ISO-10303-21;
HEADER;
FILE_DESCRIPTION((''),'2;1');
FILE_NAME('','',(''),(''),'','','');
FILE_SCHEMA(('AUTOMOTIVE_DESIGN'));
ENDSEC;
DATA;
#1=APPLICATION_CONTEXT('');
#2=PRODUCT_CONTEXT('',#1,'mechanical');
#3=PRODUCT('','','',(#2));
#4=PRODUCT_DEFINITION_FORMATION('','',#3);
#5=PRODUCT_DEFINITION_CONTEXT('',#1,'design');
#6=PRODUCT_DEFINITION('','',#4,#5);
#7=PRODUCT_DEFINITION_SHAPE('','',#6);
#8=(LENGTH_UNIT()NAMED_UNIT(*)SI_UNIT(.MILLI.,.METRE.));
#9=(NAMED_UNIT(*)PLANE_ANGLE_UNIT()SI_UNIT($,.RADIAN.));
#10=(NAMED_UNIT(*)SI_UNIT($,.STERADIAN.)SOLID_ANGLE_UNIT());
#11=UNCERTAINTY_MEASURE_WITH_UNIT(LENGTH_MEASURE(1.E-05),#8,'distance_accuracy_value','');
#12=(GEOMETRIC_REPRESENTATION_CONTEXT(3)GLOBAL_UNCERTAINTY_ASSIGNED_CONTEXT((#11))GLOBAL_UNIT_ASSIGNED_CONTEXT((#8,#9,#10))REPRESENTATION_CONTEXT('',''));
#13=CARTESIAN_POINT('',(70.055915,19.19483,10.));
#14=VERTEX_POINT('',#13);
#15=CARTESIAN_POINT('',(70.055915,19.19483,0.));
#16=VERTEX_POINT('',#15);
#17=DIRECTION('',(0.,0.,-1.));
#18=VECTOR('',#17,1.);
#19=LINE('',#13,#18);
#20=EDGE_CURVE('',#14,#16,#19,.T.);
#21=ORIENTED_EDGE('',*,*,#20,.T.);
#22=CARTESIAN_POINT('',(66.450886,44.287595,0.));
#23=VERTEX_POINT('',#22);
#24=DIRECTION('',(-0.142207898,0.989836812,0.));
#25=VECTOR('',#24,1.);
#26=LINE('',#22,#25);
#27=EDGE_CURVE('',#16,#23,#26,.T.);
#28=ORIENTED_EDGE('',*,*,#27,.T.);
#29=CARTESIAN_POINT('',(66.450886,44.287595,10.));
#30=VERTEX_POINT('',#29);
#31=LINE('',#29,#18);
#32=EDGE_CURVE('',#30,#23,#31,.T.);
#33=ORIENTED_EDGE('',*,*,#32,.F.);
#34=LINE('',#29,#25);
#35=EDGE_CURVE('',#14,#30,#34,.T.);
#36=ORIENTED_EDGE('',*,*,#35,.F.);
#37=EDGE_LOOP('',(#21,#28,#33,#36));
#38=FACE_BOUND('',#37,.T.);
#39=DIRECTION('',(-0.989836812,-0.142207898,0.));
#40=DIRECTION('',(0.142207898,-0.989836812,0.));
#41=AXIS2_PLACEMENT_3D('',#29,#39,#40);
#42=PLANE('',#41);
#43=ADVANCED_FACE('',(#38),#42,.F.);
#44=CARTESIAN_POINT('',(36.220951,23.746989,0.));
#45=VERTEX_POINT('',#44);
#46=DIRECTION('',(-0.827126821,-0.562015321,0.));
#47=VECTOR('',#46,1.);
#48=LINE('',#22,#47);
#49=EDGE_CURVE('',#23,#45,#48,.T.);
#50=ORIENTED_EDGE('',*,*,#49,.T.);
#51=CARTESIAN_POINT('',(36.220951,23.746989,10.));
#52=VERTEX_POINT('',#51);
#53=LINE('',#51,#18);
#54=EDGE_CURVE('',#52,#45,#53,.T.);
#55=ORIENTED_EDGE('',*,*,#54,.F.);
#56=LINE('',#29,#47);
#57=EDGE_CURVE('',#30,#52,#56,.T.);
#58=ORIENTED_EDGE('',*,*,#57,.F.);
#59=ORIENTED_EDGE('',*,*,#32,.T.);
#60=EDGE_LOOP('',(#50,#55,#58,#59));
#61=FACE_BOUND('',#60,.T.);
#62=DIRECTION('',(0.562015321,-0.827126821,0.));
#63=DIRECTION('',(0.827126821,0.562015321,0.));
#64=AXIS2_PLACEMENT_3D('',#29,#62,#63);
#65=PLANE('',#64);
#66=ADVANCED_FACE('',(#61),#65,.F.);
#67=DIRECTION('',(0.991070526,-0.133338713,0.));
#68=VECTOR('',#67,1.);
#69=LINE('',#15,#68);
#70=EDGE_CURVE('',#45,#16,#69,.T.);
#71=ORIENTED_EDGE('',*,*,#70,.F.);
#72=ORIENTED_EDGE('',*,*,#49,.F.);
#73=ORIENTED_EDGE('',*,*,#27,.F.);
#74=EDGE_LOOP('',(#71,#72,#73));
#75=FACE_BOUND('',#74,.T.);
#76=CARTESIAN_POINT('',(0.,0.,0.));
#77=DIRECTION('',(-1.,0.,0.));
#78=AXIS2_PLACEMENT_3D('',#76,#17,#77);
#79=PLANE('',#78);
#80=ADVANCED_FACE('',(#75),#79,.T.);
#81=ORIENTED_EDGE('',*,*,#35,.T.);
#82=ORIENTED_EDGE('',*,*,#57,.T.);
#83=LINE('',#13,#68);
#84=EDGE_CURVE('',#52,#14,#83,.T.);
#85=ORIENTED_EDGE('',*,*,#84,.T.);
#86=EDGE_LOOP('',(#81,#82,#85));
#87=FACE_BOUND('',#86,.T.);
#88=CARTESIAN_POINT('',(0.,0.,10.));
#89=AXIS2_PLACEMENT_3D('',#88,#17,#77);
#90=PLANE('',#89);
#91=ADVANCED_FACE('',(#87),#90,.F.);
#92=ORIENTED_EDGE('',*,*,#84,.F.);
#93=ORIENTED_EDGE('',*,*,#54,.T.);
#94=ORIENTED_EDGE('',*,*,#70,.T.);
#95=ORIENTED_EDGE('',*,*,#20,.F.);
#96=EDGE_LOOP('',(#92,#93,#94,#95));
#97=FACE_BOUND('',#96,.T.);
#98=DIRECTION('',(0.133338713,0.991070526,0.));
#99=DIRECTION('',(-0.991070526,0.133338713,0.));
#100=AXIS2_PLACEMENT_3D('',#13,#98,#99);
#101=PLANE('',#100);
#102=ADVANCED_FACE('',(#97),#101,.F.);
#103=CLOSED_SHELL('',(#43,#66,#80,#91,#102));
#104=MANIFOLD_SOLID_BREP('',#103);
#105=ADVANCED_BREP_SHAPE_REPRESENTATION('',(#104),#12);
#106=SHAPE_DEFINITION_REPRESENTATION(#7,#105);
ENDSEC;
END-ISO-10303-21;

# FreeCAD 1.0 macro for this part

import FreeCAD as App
import Part
import Sketcher

V = App.Vector

doc = App.newDocument("Part")
body = doc.addObject("PartDesign::Body", "Body")

# Sketch on XY plane
sketch1 = body.newObject("Sketcher::SketchObject", "Sketch")
sketch1.AttachmentSupport = (doc.getObject("XY_Plane"), [""])
sketch1.MapMode = "FlatFace"
sketch1.addGeometry([
    Part.LineSegment(V(66.450886, 44.287595, 0), V(36.220951, 23.746989, 0)),
    Part.LineSegment(V(36.220951, 23.746989, 0), V(70.055915, 19.19483, 0)),
    Part.LineSegment(V(70.055915, 19.19483, 0), V(66.450886, 44.287595, 0)),
], False)
sketch1.addConstraint([
    Sketcher.Constraint("Coincident", 0, 2, 1, 1),
    Sketcher.Constraint("Coincident", 1, 2, 2, 1),
    Sketcher.Constraint("Coincident", 2, 2, 0, 1),
    Sketcher.Constraint("DistanceX", -1, 1, 0, 2, 36.220951),
    Sketcher.Constraint("DistanceY", -1, 1, 0, 2, 23.746989),
    Sketcher.Constraint("DistanceY", -1, 1, 1, 2, 19.19483),
    Sketcher.Constraint("DistanceX", 2, 2, 1, 2, 3.605028),
    Sketcher.Constraint("Distance", 0, 36.548126),
    Sketcher.Constraint("Distance", 1, 34.139814),
])
pad1 = body.newObject("PartDesign::Pad", "Pad")
pad1.Profile = sketch1
pad1.Length = 10

doc.recompute()
